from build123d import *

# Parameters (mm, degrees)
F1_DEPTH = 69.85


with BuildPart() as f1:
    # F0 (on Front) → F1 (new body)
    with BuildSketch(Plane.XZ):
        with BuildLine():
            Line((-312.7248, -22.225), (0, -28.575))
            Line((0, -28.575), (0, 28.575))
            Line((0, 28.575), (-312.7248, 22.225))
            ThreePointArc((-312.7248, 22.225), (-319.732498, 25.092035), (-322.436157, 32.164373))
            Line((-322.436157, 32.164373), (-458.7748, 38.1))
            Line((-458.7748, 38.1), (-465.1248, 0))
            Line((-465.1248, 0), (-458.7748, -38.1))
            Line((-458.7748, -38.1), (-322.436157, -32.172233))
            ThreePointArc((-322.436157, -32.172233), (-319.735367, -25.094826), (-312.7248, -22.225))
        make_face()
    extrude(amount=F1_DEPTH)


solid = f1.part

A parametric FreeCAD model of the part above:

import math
import FreeCAD as App
import Part
import Sketcher
Q = App.Units.Quantity

doc = App.newDocument("Part")
params = doc.addObject("Spreadsheet::Sheet", "Params")
for row, (alias, value) in enumerate([
    ("sketch1_height", "2.25 in"),
    ("pad1_length", "2.75 in"),
], start=1):
    params.set(f"A{row}", alias)
    params.set(f"B{row}", "=" + value)
    params.setAlias(f"B{row}", alias)

body = doc.addObject("PartDesign::Body", "Body")

# Sketch on XZ plane
sketch1 = doc.addObject("Sketcher::SketchObject", "Sketch")
body.addObject(sketch1)
sketch1.AttachmentSupport = (doc.XZ_Plane, [""])
sketch1.MapMode = "FlatFace"
sketch1.addGeometry(Part.LineSegment(App.Vector(-313, -22, 0), App.Vector(0, -29, 0)), False)
sketch1.addGeometry(Part.LineSegment(App.Vector(0, -29, 0), App.Vector(0, 29, 0)), False)
sketch1.addGeometry(Part.LineSegment(App.Vector(0, 29, 0), App.Vector(-313, 22, 0)), False)
sketch1.addGeometry(Part.ArcOfCircle(Part.Circle(App.Vector(-313, 32, 0), App.Vector(0, 0, 1), 10), math.radians(178), math.radians(271)), False)
sketch1.addGeometry(Part.LineSegment(App.Vector(-322, 32, 0), App.Vector(-459, 38, 0)), False)
sketch1.addGeometry(Part.LineSegment(App.Vector(-459, 38, 0), App.Vector(-465, 0, 0)), False)
sketch1.addGeometry(Part.LineSegment(App.Vector(-465, 0, 0), App.Vector(-459, -38, 0)), False)
sketch1.addGeometry(Part.LineSegment(App.Vector(-459, -38, 0), App.Vector(-322, -32, 0)), False)
sketch1.addGeometry(Part.ArcOfCircle(Part.Circle(App.Vector(-313, -32, 0), App.Vector(0, 0, 1), 10), math.radians(89), math.radians(183)), False)
sketch1.addConstraint(Sketcher.Constraint("Coincident", 0, 2, 1, 1))
sketch1.addConstraint(Sketcher.Constraint("Coincident", 1, 2, 2, 1))
sketch1.addConstraint(Sketcher.Constraint("Tangent", 2, 2, 3, 2))
sketch1.addConstraint(Sketcher.Constraint("Coincident", 3, 1, 4, 1))
sketch1.addConstraint(Sketcher.Constraint("Coincident", 4, 2, 5, 1))
sketch1.addConstraint(Sketcher.Constraint("Coincident", 5, 2, 6, 1))
sketch1.addConstraint(Sketcher.Constraint("Coincident", 6, 2, 7, 1))
sketch1.addConstraint(Sketcher.Constraint("Coincident", 7, 2, 8, 2))
sketch1.addConstraint(Sketcher.Constraint("Tangent", 8, 1, 0, 1))
sketch1.addConstraint(Sketcher.Constraint("Vertical", 1))
sketch1.addConstraint(Sketcher.Constraint("Symmetric", 0, 2, 1, 2, -1, 1))
sketch1.addConstraint(Sketcher.Constraint("Symmetric", 4, 2, 6, 2, -1))
sketch1.addConstraint(Sketcher.Constraint("Symmetric", 2, 2, 8, 1, -1))
sketch1.addConstraint(Sketcher.Constraint("PointOnObject", 5, 2, -1))
sketch1.addConstraint(Sketcher.Constraint("Vertical", 3, 1, 7, 2))
sketch1.addConstraint(Sketcher.Constraint("DistanceY", 0, 2, 2, 2, Q("2 in")))
sketch1.addConstraint(Sketcher.Constraint("DistanceX", 5, 2, 2, 2, Q("6 in")))
sketch1.addConstraint(Sketcher.Constraint("DistanceY", 6, 2, 4, 2, Q("3 in")))
sketch1.addConstraint(Sketcher.Constraint("DistanceY", 1, 1, 1, 2, Q("2.25 in")))
sketch1.addConstraint(Sketcher.Constraint("DistanceY", -1, 1, 3, 3, Q("1.25 in")))
sketch1.addConstraint(Sketcher.Constraint("DistanceX", 4, 2, 2, 2, Q("5.75 in")))
sketch1.addConstraint(Sketcher.Constraint("DistanceX", 2, 2, -1, 1, Q("12.312 in")))
sketch1.addConstraint(Sketcher.Constraint("Radius", 8, 9.527288))
sketch1.addConstraint(Sketcher.Constraint("DistanceX", 3, 1, 3, 3, 9.517948))
sketch1.setExpression("Constraints[18]", "Params.sketch1_height")
pad1 = doc.addObject("PartDesign::Pad", "Pad")
body.addObject(pad1)
pad1.Profile = sketch1
pad1.setExpression("Length", "Params.pad1_length")

doc.recompute()
